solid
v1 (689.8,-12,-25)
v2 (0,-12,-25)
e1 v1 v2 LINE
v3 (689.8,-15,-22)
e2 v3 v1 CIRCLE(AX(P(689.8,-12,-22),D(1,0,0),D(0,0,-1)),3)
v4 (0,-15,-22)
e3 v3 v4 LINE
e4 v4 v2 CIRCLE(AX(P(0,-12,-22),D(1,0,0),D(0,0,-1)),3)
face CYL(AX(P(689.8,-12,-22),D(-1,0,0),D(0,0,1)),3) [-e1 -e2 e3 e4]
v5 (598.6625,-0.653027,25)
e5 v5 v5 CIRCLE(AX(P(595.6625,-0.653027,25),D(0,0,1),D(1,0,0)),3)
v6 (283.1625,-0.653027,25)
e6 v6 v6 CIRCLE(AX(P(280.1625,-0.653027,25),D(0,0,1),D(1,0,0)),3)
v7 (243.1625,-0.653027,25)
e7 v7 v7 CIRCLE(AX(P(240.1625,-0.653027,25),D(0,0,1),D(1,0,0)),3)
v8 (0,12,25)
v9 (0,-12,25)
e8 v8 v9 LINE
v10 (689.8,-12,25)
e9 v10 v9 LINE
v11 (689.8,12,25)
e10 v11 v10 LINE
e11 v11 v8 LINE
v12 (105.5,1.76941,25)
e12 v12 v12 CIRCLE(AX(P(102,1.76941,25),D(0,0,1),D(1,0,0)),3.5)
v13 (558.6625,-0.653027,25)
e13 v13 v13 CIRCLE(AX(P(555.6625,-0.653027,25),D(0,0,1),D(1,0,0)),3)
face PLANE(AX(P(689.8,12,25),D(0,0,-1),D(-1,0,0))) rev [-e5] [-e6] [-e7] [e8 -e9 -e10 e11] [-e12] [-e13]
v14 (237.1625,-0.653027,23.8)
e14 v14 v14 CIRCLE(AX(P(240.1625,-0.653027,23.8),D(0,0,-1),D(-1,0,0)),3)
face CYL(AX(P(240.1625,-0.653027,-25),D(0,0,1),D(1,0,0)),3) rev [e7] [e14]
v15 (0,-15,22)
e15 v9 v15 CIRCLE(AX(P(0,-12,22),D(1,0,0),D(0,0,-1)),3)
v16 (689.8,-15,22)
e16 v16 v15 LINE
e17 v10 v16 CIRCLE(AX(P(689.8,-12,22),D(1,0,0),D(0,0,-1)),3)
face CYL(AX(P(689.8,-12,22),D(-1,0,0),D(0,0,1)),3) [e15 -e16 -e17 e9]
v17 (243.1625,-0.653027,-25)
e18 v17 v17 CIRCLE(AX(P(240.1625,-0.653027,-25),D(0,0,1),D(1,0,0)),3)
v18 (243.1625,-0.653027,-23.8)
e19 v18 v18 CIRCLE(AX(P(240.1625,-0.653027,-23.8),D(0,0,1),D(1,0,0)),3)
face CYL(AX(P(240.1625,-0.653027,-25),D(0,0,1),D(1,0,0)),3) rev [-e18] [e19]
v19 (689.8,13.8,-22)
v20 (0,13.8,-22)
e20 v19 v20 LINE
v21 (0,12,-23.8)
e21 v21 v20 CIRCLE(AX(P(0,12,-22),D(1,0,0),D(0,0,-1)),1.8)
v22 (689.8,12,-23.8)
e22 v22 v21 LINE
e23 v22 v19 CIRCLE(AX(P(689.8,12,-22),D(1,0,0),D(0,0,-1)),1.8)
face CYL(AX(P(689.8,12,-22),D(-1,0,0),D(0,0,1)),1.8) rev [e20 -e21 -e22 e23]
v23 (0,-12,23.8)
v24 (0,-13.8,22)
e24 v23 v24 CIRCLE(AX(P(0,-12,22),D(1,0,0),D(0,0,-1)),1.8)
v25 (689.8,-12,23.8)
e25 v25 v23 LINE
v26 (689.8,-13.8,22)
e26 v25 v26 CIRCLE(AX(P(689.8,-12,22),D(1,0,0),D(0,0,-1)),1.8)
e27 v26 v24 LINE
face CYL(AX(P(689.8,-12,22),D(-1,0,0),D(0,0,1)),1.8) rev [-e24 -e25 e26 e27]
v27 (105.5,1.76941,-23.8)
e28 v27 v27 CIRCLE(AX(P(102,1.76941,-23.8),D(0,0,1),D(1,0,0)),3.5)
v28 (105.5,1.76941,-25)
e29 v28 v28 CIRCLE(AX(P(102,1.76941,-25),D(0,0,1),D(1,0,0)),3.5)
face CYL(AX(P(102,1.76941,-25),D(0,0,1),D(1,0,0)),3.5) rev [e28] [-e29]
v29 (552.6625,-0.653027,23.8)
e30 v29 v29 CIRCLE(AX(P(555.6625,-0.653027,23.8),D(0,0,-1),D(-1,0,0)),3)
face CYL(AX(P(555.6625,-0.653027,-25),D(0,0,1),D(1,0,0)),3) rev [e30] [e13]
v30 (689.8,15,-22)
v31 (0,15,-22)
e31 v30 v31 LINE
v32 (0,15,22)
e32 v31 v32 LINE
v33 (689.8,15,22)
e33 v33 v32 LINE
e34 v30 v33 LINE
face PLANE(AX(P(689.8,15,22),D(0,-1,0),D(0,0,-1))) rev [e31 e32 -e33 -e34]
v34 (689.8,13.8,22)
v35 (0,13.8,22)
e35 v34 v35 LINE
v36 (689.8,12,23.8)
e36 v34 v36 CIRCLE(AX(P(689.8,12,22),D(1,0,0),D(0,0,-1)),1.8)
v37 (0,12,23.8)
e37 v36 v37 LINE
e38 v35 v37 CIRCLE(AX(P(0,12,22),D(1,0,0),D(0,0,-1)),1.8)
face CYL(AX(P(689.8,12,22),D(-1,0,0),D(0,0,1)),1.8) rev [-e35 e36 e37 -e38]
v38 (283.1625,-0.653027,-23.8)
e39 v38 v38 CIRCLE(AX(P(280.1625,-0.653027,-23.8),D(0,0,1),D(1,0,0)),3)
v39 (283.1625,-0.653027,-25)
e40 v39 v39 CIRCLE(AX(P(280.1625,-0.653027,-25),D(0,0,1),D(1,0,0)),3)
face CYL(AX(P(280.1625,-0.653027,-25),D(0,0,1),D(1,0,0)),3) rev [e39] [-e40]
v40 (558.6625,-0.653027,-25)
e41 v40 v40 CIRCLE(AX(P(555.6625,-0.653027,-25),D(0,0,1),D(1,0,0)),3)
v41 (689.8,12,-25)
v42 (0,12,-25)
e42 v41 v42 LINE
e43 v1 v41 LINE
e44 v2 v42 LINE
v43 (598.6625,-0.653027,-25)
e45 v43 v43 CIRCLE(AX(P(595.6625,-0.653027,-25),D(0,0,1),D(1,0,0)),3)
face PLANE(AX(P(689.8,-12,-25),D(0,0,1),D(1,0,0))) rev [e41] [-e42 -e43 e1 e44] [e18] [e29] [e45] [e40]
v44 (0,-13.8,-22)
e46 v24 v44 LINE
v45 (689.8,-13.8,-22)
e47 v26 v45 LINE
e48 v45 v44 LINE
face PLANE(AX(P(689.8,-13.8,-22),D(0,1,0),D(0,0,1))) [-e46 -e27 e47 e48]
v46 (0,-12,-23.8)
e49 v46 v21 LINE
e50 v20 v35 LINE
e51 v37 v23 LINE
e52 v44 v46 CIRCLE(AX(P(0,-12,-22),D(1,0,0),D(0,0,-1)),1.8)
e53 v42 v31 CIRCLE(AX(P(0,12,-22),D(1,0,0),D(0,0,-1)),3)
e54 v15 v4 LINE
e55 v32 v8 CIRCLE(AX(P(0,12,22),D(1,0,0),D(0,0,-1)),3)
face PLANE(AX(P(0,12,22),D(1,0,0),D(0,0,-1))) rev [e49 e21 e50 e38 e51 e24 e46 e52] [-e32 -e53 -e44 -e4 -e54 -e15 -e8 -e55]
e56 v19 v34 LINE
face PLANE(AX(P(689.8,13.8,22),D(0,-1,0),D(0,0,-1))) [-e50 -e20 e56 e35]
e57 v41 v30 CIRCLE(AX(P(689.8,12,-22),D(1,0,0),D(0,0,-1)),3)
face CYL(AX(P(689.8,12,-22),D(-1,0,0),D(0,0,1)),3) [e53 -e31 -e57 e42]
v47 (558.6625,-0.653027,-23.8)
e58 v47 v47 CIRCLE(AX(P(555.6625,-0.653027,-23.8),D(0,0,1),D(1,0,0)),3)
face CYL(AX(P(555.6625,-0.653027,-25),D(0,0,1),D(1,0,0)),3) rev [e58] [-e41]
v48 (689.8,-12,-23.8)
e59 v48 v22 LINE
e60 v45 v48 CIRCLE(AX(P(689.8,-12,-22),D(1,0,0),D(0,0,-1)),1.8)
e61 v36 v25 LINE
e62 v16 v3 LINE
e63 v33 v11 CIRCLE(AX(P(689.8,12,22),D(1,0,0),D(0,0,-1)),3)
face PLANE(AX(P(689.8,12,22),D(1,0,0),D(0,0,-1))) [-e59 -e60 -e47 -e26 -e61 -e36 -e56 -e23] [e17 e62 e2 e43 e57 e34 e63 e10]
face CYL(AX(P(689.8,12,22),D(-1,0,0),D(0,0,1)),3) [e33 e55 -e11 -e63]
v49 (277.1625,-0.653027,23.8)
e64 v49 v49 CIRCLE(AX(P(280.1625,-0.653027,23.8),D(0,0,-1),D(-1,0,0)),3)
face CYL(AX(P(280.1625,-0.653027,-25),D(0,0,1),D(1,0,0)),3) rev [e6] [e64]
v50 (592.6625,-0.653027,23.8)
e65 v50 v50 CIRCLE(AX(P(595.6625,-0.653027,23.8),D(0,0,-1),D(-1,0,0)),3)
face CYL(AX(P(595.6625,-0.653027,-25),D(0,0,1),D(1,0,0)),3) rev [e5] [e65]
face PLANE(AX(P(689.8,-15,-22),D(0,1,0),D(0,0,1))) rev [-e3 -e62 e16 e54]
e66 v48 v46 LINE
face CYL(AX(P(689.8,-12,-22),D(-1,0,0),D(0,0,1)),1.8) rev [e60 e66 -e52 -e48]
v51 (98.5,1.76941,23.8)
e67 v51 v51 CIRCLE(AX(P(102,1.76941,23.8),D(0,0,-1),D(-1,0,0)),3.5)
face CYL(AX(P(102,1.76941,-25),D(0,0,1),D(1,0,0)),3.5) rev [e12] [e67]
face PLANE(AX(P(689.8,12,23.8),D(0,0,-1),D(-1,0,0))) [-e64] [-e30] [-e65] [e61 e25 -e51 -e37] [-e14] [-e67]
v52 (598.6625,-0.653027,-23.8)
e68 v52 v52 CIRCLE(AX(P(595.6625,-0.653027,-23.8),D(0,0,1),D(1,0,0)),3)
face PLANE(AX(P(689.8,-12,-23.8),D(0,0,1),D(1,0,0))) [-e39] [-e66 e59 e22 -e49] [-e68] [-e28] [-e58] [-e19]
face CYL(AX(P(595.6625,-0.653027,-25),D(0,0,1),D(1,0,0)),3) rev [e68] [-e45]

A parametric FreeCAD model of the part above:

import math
import FreeCAD as App
import Part
import Sketcher
from FreeCAD import Vector
Q = App.Units.Quantity

doc = App.newDocument("Part")
body = doc.addObject("PartDesign::Body", "Body")

# Sketch on YZ plane
sketch1 = body.newObject("Sketcher::SketchObject", "Sketch")
sketch1.AttachmentSupport = (doc.getObject("YZ_Plane"), [""])
sketch1.MapMode = "FlatFace"
sketch1.addGeometry([
    Part.LineSegment(Vector(-12, -25, 0), Vector(12, -25, 0)),  # 0
    Part.ArcOfCircle(Part.Circle(Vector(12, -22, 0), Vector(0, 0, 1), 3), math.radians(-90), math.radians(0)),  # 1
    Part.LineSegment(Vector(15, -22, 0), Vector(15, 22, 0)),  # 2
    Part.ArcOfCircle(Part.Circle(Vector(12, 22, 0), Vector(0, 0, 1), 3), math.radians(0), math.radians(90)),  # 3
    Part.LineSegment(Vector(12, 25, 0), Vector(-12, 25, 0)),  # 4
    Part.ArcOfCircle(Part.Circle(Vector(-12, 22, 0), Vector(0, 0, 1), 3), math.radians(90), math.radians(180)),  # 5
    Part.LineSegment(Vector(-15, 22, 0), Vector(-15, -22, 0)),  # 6
    Part.ArcOfCircle(Part.Circle(Vector(-12, -22, 0), Vector(0, 0, 1), 3), math.radians(180), math.radians(270)),  # 7
    Part.LineSegment(Vector(12, -23.8, 0), Vector(-12, -23.8, 0)),  # 8
    Part.ArcOfCircle(Part.Circle(Vector(-12, -22, 0), Vector(0, 0, 1), 1.8), math.radians(180), math.radians(270)),  # 9
    Part.LineSegment(Vector(-13.8, -22, 0), Vector(-13.8, 22, 0)),  # 10
    Part.ArcOfCircle(Part.Circle(Vector(-12, 22, 0), Vector(0, 0, 1), 1.8), math.radians(90), math.radians(180)),  # 11
    Part.LineSegment(Vector(-12, 23.8, 0), Vector(12, 23.8, 0)),  # 12
    Part.ArcOfCircle(Part.Circle(Vector(12, 22, 0), Vector(0, 0, 1), 1.8), math.radians(0), math.radians(90)),  # 13
    Part.LineSegment(Vector(13.8, 22, 0), Vector(13.8, -22, 0)),  # 14
    Part.ArcOfCircle(Part.Circle(Vector(12, -22, 0), Vector(0, 0, 1), 1.8), math.radians(-90), math.radians(0)),  # 15
], False)
sketch1.addConstraint([
    Sketcher.Constraint("Tangent", 0, 2, 1, 1),
    Sketcher.Constraint("Tangent", 1, 2, 2, 1),
    Sketcher.Constraint("Tangent", 2, 2, 3, 1),
    Sketcher.Constraint("Tangent", 3, 2, 4, 1),
    Sketcher.Constraint("Tangent", 4, 2, 5, 1),
    Sketcher.Constraint("Tangent", 5, 2, 6, 1),
    Sketcher.Constraint("Tangent", 6, 2, 7, 1),
    Sketcher.Constraint("Tangent", 7, 2, 0, 1),
    Sketcher.Constraint("Tangent", 8, 2, 9, 2),
    Sketcher.Constraint("Tangent", 9, 1, 10, 1),
    Sketcher.Constraint("Tangent", 10, 2, 11, 2),
    Sketcher.Constraint("Tangent", 11, 1, 12, 1),
    Sketcher.Constraint("Tangent", 12, 2, 13, 2),
    Sketcher.Constraint("Tangent", 13, 1, 14, 1),
    Sketcher.Constraint("Tangent", 14, 2, 15, 2),
    Sketcher.Constraint("Tangent", 15, 1, 8, 1),
    Sketcher.Constraint("Horizontal", 0),
    Sketcher.Constraint("Vertical", 2),
    Sketcher.Constraint("Horizontal", 4),
    Sketcher.Constraint("Vertical", 6),
    Sketcher.Constraint("Horizontal", 8),
    Sketcher.Constraint("Vertical", 10),
    Sketcher.Constraint("Horizontal", 12),
    Sketcher.Constraint("Vertical", 14),
    Sketcher.Constraint("Coincident", 9, 3, 7, 3),
    Sketcher.Constraint("Coincident", 11, 3, 5, 3),
    Sketcher.Constraint("Coincident", 13, 3, 3, 3),
    Sketcher.Constraint("Equal", 1, 3),
    Sketcher.Constraint("Equal", 3, 5),
    Sketcher.Constraint("Equal", 5, 7),
    Sketcher.Constraint("Equal", 13, 15),
    Sketcher.Constraint("Symmetric", 1, 3, 5, 3, -1, 1),
    Sketcher.Constraint("Radius", 1, Q("3 mm")),
    Sketcher.Constraint("Radius", 9, Q("1.8 mm")),
    Sketcher.Constraint("DistanceX", 0, 1, 0, 2, Q("24 mm")),
    Sketcher.Constraint("DistanceY", 2, 1, 2, 2, Q("44 mm")),
])
pad1 = body.newObject("PartDesign::Pad", "Pad")
pad1.Profile = sketch1
pad1.Length = 689.8

# Sketch on XY plane
sketch2 = body.newObject("Sketcher::SketchObject", "Sketch001")
sketch2.AttachmentSupport = (doc.getObject("XY_Plane"), [""])
sketch2.MapMode = "FlatFace"
sketch2.AttachmentOffset = App.Placement(Vector(0, 0, 25), App.Rotation())
sketch2.addGeometry([
    Part.Circle(Vector(280.2, -0.7, 0), Vector(0, 0, 1), 3),
    Part.Circle(Vector(240.2, -0.7, 0), Vector(0, 0, 1), 3),
    Part.Circle(Vector(595.7, -0.7, 0), Vector(0, 0, 1), 3),
    Part.Circle(Vector(555.7, -0.7, 0), Vector(0, 0, 1), 3),
], False)
sketch2.addConstraint([
    Sketcher.Constraint("Equal", 0, 1),
    Sketcher.Constraint("Equal", 1, 2),
    Sketcher.Constraint("Equal", 2, 3),
    Sketcher.Constraint("Horizontal", 0, 3, 1, 3),
    Sketcher.Constraint("Horizontal", 1, 3, 2, 3),
    Sketcher.Constraint("Horizontal", 2, 3, 3, 3),
    Sketcher.Constraint("Diameter", 0, Q("6 mm")),
    Sketcher.Constraint("DistanceX", 1, 3, 0, 3, Q("40 mm")),
    Sketcher.Constraint("DistanceX", 3, 3, 2, 3, Q("40 mm")),
    Sketcher.Constraint("DistanceX", 0, 3, 2, 3, Q("315.5 mm")),
    Sketcher.Constraint("DistanceX", -1, 1, 0, 3, Q("280.1625 mm")),
    Sketcher.Constraint("DistanceY", 0, 3, -1, 1, Q("0.653027 mm")),
])
pocket1 = body.newObject("PartDesign::Pocket", "Pocket")
pocket1.Profile = sketch2
pocket1.Type = "ThroughAll"

# Sketch on XY plane
sketch3 = body.newObject("Sketcher::SketchObject", "Sketch002")
sketch3.AttachmentSupport = (doc.getObject("XY_Plane"), [""])
sketch3.MapMode = "FlatFace"
sketch3.AttachmentOffset = App.Placement(Vector(0, 0, 25), App.Rotation())
sketch3.addGeometry(Part.Circle(Vector(102, 1.8, 0), Vector(0, 0, 1), 3.5), False)
sketch3.addConstraint([
    Sketcher.Constraint("Diameter", 0, Q("7 mm")),
    Sketcher.Constraint("DistanceX", -1, 1, 0, 3, Q("102 mm")),
    Sketcher.Constraint("DistanceY", -1, 1, 0, 3, Q("1.76941 mm")),
])
pocket2 = body.newObject("PartDesign::Pocket", "Pocket001")
pocket2.Profile = sketch3
pocket2.Type = "ThroughAll"

doc.recompute()
